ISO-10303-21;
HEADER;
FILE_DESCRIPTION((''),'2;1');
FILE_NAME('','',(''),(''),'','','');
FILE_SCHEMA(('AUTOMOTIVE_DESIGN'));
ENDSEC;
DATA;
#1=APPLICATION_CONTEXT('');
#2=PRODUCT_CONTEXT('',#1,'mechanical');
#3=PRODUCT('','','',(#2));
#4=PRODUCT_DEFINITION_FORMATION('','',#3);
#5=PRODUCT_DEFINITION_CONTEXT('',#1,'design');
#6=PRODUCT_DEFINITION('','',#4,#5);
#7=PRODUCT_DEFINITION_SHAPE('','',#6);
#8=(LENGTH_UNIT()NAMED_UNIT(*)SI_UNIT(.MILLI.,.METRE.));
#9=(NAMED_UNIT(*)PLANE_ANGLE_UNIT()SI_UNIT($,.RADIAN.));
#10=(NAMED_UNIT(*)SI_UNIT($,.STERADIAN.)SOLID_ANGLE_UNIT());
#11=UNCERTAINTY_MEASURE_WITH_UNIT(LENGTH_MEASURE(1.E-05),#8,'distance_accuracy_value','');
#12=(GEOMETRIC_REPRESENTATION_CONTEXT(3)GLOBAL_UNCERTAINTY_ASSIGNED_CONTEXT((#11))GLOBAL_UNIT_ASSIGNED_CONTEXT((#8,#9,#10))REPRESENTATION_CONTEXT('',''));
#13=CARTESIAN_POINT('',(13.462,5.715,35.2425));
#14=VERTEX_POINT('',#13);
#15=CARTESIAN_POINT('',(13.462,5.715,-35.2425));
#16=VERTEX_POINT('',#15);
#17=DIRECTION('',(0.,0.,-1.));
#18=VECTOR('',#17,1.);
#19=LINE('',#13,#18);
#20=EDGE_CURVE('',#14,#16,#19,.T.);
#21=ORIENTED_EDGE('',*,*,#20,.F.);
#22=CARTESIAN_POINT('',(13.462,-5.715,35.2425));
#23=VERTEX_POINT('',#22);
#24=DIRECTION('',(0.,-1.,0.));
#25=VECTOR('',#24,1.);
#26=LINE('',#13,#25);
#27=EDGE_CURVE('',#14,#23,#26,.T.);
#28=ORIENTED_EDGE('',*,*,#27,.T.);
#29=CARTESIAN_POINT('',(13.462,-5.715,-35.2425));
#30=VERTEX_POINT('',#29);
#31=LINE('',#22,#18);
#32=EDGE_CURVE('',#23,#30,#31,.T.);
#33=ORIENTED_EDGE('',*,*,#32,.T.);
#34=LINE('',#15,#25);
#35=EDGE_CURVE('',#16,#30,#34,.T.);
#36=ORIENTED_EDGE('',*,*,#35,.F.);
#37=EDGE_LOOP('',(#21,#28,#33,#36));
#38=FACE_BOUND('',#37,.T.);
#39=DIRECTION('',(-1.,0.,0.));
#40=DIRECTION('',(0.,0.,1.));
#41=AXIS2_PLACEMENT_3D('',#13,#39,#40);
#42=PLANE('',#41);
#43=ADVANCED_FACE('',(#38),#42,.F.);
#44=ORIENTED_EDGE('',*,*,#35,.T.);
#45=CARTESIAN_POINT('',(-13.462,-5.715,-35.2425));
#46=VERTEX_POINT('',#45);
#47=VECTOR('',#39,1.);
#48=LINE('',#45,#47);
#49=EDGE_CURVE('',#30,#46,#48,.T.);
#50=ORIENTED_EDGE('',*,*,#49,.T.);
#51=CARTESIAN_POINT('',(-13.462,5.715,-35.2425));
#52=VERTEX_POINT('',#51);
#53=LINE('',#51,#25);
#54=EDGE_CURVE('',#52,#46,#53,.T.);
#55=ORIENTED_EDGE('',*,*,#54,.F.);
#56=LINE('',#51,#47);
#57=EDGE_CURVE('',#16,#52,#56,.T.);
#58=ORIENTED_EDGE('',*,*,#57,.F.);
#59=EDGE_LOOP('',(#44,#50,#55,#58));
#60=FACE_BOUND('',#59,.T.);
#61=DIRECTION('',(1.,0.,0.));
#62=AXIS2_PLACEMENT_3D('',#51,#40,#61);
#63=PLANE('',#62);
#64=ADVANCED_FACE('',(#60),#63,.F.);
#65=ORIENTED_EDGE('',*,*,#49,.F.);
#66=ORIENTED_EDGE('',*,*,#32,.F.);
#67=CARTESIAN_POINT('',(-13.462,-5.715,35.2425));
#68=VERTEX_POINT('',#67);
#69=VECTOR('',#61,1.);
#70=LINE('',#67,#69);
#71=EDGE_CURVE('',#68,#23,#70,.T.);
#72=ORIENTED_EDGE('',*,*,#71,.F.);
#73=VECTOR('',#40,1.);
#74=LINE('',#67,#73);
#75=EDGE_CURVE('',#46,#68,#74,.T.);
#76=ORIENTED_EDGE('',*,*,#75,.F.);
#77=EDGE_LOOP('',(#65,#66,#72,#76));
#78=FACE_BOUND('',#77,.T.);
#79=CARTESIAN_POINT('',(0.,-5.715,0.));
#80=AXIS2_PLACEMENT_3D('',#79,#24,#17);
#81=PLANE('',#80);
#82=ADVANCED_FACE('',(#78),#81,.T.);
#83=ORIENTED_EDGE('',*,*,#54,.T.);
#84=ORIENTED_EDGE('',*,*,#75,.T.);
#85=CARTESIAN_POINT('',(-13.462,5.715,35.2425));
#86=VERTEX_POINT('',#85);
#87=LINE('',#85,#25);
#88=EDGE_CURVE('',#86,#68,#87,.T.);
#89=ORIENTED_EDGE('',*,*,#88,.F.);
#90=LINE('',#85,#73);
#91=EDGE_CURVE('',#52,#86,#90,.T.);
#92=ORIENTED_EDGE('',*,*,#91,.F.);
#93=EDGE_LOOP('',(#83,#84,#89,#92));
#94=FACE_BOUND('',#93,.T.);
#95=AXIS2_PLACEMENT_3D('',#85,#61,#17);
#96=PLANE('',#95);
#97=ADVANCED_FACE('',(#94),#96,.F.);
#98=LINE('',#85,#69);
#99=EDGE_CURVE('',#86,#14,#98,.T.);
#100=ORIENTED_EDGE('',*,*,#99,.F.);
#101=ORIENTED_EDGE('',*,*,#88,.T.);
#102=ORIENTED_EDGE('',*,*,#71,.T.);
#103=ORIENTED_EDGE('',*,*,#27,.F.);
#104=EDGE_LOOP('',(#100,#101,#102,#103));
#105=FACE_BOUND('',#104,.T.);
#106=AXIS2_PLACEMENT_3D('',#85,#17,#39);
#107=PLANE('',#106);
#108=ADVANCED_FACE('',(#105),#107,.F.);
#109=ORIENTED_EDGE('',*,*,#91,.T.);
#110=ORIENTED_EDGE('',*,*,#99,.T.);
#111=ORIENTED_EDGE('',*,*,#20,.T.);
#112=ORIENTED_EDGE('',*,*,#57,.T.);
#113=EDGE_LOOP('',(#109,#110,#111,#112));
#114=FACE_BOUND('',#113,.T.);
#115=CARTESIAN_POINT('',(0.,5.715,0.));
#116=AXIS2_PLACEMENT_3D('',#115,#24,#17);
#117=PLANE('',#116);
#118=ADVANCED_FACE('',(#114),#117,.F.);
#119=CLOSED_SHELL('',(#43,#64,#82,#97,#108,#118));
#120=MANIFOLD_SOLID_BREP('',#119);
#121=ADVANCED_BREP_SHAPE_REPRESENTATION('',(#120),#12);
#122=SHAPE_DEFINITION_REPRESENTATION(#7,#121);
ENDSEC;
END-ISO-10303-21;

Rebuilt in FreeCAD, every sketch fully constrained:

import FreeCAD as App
import Part
import Sketcher

V = App.Vector
Q = App.Units.Quantity


def add_polygon(sketch, points):
    """Adds a closed chain of lines whose ends are joined by coincident constraints."""
    first, n = sketch.GeometryCount, len(points)
    for a, b in zip(points, points[1:] + points[:1]):
        sketch.addGeometry(Part.LineSegment(App.Vector(*a, 0), App.Vector(*b, 0)), False)
    for i in range(n):
        sketch.addConstraint(Sketcher.Constraint("Coincident", first + i, 2, first + (i + 1) % n, 1))

doc = App.newDocument("Part")
body = doc.addObject("PartDesign::Body", "Body")

# Sketch on XZ plane
sketch1 = body.newObject("Sketcher::SketchObject", "Sketch")
sketch1.AttachmentSupport = (doc.getObject("XZ_Plane"), [""])
sketch1.MapMode = "FlatFace"
add_polygon(sketch1, [(-13, -35), (-13, 35), (13, 35), (13, -35)])  # lines 0-3
sketch1.addConstraint(Sketcher.Constraint("Vertical", 0))
sketch1.addConstraint(Sketcher.Constraint("Horizontal", 1))
sketch1.addConstraint(Sketcher.Constraint("Vertical", 2))
sketch1.addConstraint(Sketcher.Constraint("Horizontal", 3))
sketch1.addConstraint(Sketcher.Constraint("Symmetric", 0, 2, 2, 2, -1, 1))
sketch1.addConstraint(Sketcher.Constraint("DistanceX", 1, 1, 1, 2, Q("1.06 in")))
sketch1.addConstraint(Sketcher.Constraint("DistanceY", 0, 1, 0, 2, Q("2.775 in")))
pad1 = body.newObject("PartDesign::Pad", "Pad")
pad1.Profile = sketch1
pad1.Length = Q("0.45 in")
pad1.Midplane = True

doc.recompute()
